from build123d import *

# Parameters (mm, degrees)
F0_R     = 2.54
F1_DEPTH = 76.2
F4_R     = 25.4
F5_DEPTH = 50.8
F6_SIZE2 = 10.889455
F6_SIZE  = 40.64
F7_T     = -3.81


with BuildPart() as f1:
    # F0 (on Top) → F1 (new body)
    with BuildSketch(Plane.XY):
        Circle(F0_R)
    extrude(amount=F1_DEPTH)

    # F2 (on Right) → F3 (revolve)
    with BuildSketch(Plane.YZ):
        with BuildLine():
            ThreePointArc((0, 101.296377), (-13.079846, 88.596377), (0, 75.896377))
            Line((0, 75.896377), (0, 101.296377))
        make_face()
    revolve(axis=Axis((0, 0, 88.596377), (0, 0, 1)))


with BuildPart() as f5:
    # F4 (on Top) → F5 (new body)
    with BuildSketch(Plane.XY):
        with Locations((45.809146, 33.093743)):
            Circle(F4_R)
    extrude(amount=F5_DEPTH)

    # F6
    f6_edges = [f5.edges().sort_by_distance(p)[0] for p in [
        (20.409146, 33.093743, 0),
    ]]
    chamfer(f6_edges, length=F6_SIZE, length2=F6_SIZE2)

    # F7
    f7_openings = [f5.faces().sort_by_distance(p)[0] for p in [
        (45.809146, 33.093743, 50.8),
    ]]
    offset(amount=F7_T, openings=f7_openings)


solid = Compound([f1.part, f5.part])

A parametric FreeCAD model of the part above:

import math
import FreeCAD as App
import Part
import Sketcher
from FreeCAD import Vector
Q = App.Units.Quantity


def edges_at(feature, points):
    """Names of the edges that pass closest to the given points."""
    edges = feature.Shape.Edges
    near = lambda p: min(range(len(edges)), key=lambda i: edges[i].distToShape(Part.Vertex(*p))[0])
    return sorted({f"Edge{near(p) + 1}" for p in points})


def faces_at(feature, points):
    """Names of the faces that lie closest to the given points."""
    faces = feature.Shape.Faces
    near = lambda p: min(range(len(faces)), key=lambda i: faces[i].distToShape(Part.Vertex(*p))[0])
    return sorted({f"Face{near(p) + 1}" for p in points})

doc = App.newDocument("Part")
params = doc.addObject("Spreadsheet::Sheet", "Params")
for row, (alias, value) in enumerate([
    ("sketch1_diameter", "0.2 in"),
    ("pad1_length", "3 in"),
    ("sketch2_height", "1 in"),
    ("revolution_angle", "360 deg"),
    ("sketch3_diameter", "2 in"),
    ("pad2_length", "2 in"),
    ("chamfer_size", "1.6 in"),
    ("chamfer_size2", "10.889455 mm"),
    ("thickness_wall", "0.15 in"),
], start=1):
    params.set(f"A{row}", alias)
    params.set(f"B{row}", "=" + value)
    params.setAlias(f"B{row}", alias)

body = doc.addObject("PartDesign::Body", "Body")

# Sketch on XY plane
sketch1 = body.newObject("Sketcher::SketchObject", "Sketch")
sketch1.AttachmentSupport = (doc.getObject("XY_Plane"), [""])
sketch1.MapMode = "FlatFace"
sketch1.addGeometry(Part.Circle(Vector(0, 0, 0), Vector(0, 0, 1), 2.54), False)
sketch1.addConstraint([
    Sketcher.Constraint("Coincident", 0, 3, -1, 1),
    Sketcher.Constraint("Diameter", 0, Q("0.2 in")),
])
sketch1.setExpression("Constraints[1]", "Params.sketch1_diameter")
pad1 = body.newObject("PartDesign::Pad", "Pad")
pad1.Profile = sketch1
pad1.setExpression("Length", "Params.pad1_length")

# Sketch on YZ plane
sketch2 = body.newObject("Sketcher::SketchObject", "Sketch001")
sketch2.AttachmentSupport = (doc.getObject("YZ_Plane"), [""])
sketch2.MapMode = "FlatFace"
sketch2.addGeometry([
    Part.ArcOfCircle(Part.Circle(Vector(-0.374331, 88.596377, 0), Vector(0, 0, 1), 12.705515), math.radians(88.311705), math.radians(271.688295)),
    Part.LineSegment(Vector(0, 75.896377, 0), Vector(0, 101.296377, 0)),
], False)
sketch2.addConstraint([
    Sketcher.Constraint("Coincident", 0, 1, 1, 2),
    Sketcher.Constraint("Coincident", 1, 1, 0, 2),
    Sketcher.Constraint("Vertical", 1),
    Sketcher.Constraint("PointOnObject", 0, 1, -2),
    Sketcher.Constraint("DistanceY", 1, 1, 1, 2, Q("1 in")),
    Sketcher.Constraint("Radius", 0, Q("12.705515 mm")),
    Sketcher.Constraint("DistanceY", -1, 1, 0, 3, Q("88.596377 mm")),
])
sketch2.setExpression("Constraints[4]", "Params.sketch2_height")
revolution = body.newObject("PartDesign::Revolution", "Revolution")
revolution.Profile = sketch2
revolution.ReferenceAxis = (sketch2, ["V_Axis"])
revolution.setExpression("Angle", "Params.revolution_angle")
body2 = doc.addObject("PartDesign::Body", "Body001")

# Sketch on XY plane
sketch3 = body2.newObject("Sketcher::SketchObject", "Sketch002")
sketch3.AttachmentSupport = (doc.getObject("XY_Plane001"), [""])
sketch3.MapMode = "FlatFace"
sketch3.addGeometry(Part.Circle(Vector(45.809146, 33.093743, 0), Vector(0, 0, 1), 25.4), False)
sketch3.addConstraint([
    Sketcher.Constraint("Diameter", 0, Q("2 in")),
    Sketcher.Constraint("DistanceX", -1, 1, 0, 3, Q("45.809146 mm")),
    Sketcher.Constraint("DistanceY", -1, 1, 0, 3, Q("33.093743 mm")),
])
sketch3.setExpression("Constraints[0]", "Params.sketch3_diameter")
pad2 = body2.newObject("PartDesign::Pad", "Pad001")
pad2.Profile = sketch3
pad2.setExpression("Length", "Params.pad2_length")
doc.recompute()

chamfer = body2.newObject("PartDesign::Chamfer", "Chamfer")
chamfer.Base = (pad2, edges_at(pad2, [(20.409, 33.094, 0)]))
chamfer.ChamferType = "Two distances"
chamfer.setExpression("Size", "Params.chamfer_size")
chamfer.setExpression("Size2", "Params.chamfer_size2")
doc.recompute()

thickness = body2.newObject("PartDesign::Thickness", "Thickness")
thickness.Base = (chamfer, faces_at(chamfer, [(45.809, 33.094, 50.8)]))
thickness.setExpression("Value", "Params.thickness_wall")
thickness.Reversed = True
thickness.Join = "Arc"

doc.recompute()
